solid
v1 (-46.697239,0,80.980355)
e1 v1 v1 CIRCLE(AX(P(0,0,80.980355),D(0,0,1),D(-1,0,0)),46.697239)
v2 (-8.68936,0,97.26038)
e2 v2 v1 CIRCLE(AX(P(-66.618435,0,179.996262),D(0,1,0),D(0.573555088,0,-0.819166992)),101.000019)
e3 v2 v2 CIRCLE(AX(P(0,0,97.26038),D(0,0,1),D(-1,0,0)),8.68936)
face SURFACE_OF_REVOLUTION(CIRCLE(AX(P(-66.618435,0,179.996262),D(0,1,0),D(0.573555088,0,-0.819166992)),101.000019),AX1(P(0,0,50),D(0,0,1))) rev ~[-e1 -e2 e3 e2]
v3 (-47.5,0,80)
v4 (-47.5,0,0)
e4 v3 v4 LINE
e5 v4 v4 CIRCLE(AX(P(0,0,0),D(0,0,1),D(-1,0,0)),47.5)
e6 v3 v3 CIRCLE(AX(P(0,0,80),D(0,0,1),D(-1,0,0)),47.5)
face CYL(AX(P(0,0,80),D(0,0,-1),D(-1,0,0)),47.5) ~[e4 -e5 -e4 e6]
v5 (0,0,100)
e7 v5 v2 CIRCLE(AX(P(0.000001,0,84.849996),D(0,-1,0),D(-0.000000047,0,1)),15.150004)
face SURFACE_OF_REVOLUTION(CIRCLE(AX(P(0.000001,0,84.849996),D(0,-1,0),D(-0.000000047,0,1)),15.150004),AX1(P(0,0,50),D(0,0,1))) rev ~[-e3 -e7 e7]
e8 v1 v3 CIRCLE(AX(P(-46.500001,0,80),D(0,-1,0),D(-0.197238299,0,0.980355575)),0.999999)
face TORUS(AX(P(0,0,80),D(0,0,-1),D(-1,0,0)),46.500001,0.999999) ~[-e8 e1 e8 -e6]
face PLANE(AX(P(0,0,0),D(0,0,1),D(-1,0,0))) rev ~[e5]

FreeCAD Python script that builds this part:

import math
import FreeCAD as App
import Part
import Sketcher
from FreeCAD import Vector
Q = App.Units.Quantity

doc = App.newDocument("Part")
body = doc.addObject("PartDesign::Body", "Body")

sketch1 = body.newObject("Sketcher::SketchObject", "Sketch")
sketch1.AttachmentSupport = (doc.getObject("XZ_Plane"), [""])
sketch1.MapMode = "FlatFace"
sketch1.addGeometry(Part.LineSegment(Vector(-47.5, 0, 0), Vector(0, 0, 0)), False)
sketch1.addGeometry(Part.LineSegment(Vector(0, 0, 0), Vector(0, 100, 0)), False)
sketch1.addGeometry(Part.ArcOfCircle(Part.Circle(Vector(0, 84.8, 0), Vector(0, 0, 1), 15.2), math.radians(90), math.radians(125)), False)
sketch1.addGeometry(Part.ArcOfCircle(Part.Circle(Vector(-66.6, 180, 0), Vector(0, 0, 1), 101), math.radians(-79), math.radians(-55)), False)
sketch1.addGeometry(Part.ArcOfCircle(Part.Circle(Vector(-46.5, 80, 0), Vector(0, 0, 1), 1), math.radians(101), math.radians(180)), False)
sketch1.addGeometry(Part.LineSegment(Vector(-47.5, 80, 0), Vector(-47.5, 0, 0)), False)
sketch1.addConstraint(Sketcher.Constraint("Coincident", 0, 2, 1, 1))
sketch1.addConstraint(Sketcher.Constraint("Coincident", 1, 2, 2, 1))
sketch1.addConstraint(Sketcher.Constraint("Tangent", 2, 2, 3, 2))
sketch1.addConstraint(Sketcher.Constraint("Tangent", 3, 1, 4, 1))
sketch1.addConstraint(Sketcher.Constraint("Tangent", 4, 2, 5, 1))
sketch1.addConstraint(Sketcher.Constraint("Coincident", 5, 2, 0, 1))
sketch1.addConstraint(Sketcher.Constraint("Horizontal", 0))
sketch1.addConstraint(Sketcher.Constraint("Vertical", 1))
sketch1.addConstraint(Sketcher.Constraint("Vertical", 5))
sketch1.addConstraint(Sketcher.Constraint("Coincident", 0, 2, -1, 1))
sketch1.addConstraint(Sketcher.Constraint("PointOnObject", 2, 3, -2))
sketch1.addConstraint(Sketcher.Constraint("Radius", 4, Q("0.999999 mm")))
sketch1.addConstraint(Sketcher.Constraint("DistanceY", 1, 1, 1, 2, Q("100 mm")))
sketch1.addConstraint(Sketcher.Constraint("DistanceY", 5, 2, 5, 1, Q("80 mm")))
sketch1.addConstraint(Sketcher.Constraint("DistanceX", 0, 1, 0, 2, Q("47.5 mm")))
sketch1.addConstraint(Sketcher.Constraint("Radius", 3, Q("101.000019 mm")))
sketch1.addConstraint(Sketcher.Constraint("Radius", 2, Q("15.150004 mm")))
revolution = body.newObject("PartDesign::Revolution", "Revolution")
revolution.Profile = sketch1
revolution.ReferenceAxis = (sketch1, ["V_Axis"])
revolution.Angle = 360

doc.recompute()
